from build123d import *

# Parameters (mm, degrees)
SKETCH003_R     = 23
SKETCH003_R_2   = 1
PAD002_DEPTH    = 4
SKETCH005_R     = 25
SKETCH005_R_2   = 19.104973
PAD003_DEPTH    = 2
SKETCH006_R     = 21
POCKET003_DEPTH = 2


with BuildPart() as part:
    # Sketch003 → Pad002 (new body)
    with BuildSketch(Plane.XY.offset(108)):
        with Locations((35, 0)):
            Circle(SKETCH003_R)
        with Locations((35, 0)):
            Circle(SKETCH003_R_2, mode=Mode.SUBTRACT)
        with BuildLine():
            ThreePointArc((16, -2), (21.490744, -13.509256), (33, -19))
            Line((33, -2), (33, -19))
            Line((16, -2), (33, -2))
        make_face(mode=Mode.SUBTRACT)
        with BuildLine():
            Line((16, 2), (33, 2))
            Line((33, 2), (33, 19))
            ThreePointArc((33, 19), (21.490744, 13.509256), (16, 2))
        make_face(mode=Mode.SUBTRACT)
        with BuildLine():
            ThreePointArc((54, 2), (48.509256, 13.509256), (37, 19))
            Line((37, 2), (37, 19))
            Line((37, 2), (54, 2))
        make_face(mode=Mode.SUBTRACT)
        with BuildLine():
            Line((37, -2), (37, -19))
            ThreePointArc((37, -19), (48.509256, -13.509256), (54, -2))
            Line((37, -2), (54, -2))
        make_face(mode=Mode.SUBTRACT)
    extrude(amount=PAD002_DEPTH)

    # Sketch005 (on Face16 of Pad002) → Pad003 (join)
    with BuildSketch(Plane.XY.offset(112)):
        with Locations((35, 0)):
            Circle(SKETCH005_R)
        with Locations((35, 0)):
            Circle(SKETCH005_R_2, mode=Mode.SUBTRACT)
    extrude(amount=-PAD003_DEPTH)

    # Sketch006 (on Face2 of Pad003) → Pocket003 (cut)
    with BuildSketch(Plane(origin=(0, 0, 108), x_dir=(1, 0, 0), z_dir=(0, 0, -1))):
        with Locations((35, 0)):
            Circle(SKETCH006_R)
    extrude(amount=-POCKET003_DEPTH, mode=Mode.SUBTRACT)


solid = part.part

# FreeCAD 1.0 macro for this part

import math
import FreeCAD as App
import Part
import Sketcher

doc = App.newDocument("Part")
body = doc.addObject("PartDesign::Body", "Body")

# Sketch on XY plane
sketch1 = doc.addObject("Sketcher::SketchObject", "Sketch")
body.addObject(sketch1)
sketch1.AttachmentSupport = (doc.XY_Plane, [""])
sketch1.MapMode = "FlatFace"
sketch1.AttachmentOffset = App.Placement(App.Vector(0, 0, 108), App.Rotation())
sketch1.addGeometry([
    Part.Circle(App.Vector(35, 0, 0), App.Vector(0, 0, 1), 23),  # 0
    Part.ArcOfCircle(Part.Circle(App.Vector(35, 0, 0), App.Vector(0, 0, 1), 19.104974), math.radians(-173.990993), math.radians(-96.009007)),  # 1
    Part.LineSegment(App.Vector(16, -2, 0), App.Vector(33, -2, 0)),  # 2
    Part.LineSegment(App.Vector(33, -2, 0), App.Vector(33, -19, 0)),  # 3
    Part.LineSegment(App.Vector(37, -19, 0), App.Vector(37, -2, 0)),  # 4
    Part.LineSegment(App.Vector(37, -2, 0), App.Vector(54, -2, 0)),  # 5
    Part.ArcOfCircle(Part.Circle(App.Vector(35, 0, 0), App.Vector(0, 0, 1), 19.104974), math.radians(-83.990993), math.radians(-6.009007)),  # 6
    Part.LineSegment(App.Vector(33, 2, 0), App.Vector(16, 2, 0)),  # 7
    Part.ArcOfCircle(Part.Circle(App.Vector(35, 0, 0), App.Vector(0, 0, 1), 19.104974), math.radians(96.009007), math.radians(173.990993)),  # 8
    Part.LineSegment(App.Vector(33, 19, 0), App.Vector(33, 2, 0)),  # 9
    Part.Circle(App.Vector(35, 0, 0), App.Vector(0, 0, 1), 1),  # 10
    Part.ArcOfCircle(Part.Circle(App.Vector(35, 0, 0), App.Vector(0, 0, 1), 19.104974), math.radians(6.009007), math.radians(83.990993)),  # 11
    Part.LineSegment(App.Vector(54, 2, 0), App.Vector(37, 2, 0)),  # 12
    Part.LineSegment(App.Vector(37, 2, 0), App.Vector(37, 19, 0)),  # 13
], False)
sketch1.addConstraint([
    Sketcher.Constraint("Coincident", 1, 1, 2, 1),
    Sketcher.Constraint("Coincident", 2, 2, 3, 1),
    Sketcher.Constraint("Coincident", 3, 2, 1, 2),
    Sketcher.Constraint("Coincident", 4, 2, 5, 1),
    Sketcher.Constraint("Coincident", 5, 2, 6, 2),
    Sketcher.Constraint("Coincident", 6, 1, 4, 1),
    Sketcher.Constraint("Coincident", 7, 2, 8, 2),
    Sketcher.Constraint("Coincident", 8, 1, 9, 1),
    Sketcher.Constraint("Coincident", 9, 2, 7, 1),
    Sketcher.Constraint("Coincident", 11, 1, 12, 1),
    Sketcher.Constraint("Coincident", 12, 2, 13, 1),
    Sketcher.Constraint("Coincident", 13, 2, 11, 2),
    Sketcher.Constraint("Horizontal", 2),
    Sketcher.Constraint("Vertical", 3),
    Sketcher.Constraint("Vertical", 4),
    Sketcher.Constraint("Horizontal", 5),
    Sketcher.Constraint("Horizontal", 7),
    Sketcher.Constraint("Vertical", 9),
    Sketcher.Constraint("Horizontal", 12),
    Sketcher.Constraint("Vertical", 13),
    Sketcher.Constraint("Coincident", 1, 3, 0, 3),
    Sketcher.Constraint("Coincident", 6, 3, 0, 3),
    Sketcher.Constraint("Coincident", 8, 3, 0, 3),
    Sketcher.Constraint("Coincident", 10, 3, 0, 3),
    Sketcher.Constraint("Coincident", 11, 3, 0, 3),
    Sketcher.Constraint("Equal", 1, 6),
    Sketcher.Constraint("Equal", 6, 8),
    Sketcher.Constraint("Equal", 8, 11),
    Sketcher.Constraint("Symmetric", 1, 1, 7, 2, -1),
    Sketcher.Constraint("Symmetric", 4, 2, 12, 2, -1),
    Sketcher.Constraint("Horizontal", 2, 2, 4, 2),
    Sketcher.Constraint("Horizontal", 3, 2, 6, 1),
    Sketcher.Constraint("Horizontal", 8, 1, 13, 2),
    Sketcher.Constraint("Equal", 12, 3),
    Sketcher.Constraint("Diameter", 0, 46.0),
    Sketcher.Constraint("Diameter", 10, 2.0),
    Sketcher.Constraint("DistanceX", 2, 1, 2, 2, 17.0),
    Sketcher.Constraint("DistanceX", -1, 1, 0, 3, 35.0),
    Sketcher.Constraint("DistanceX", -1, 1, 1, 1, 16.0),
])
pad1 = doc.addObject("PartDesign::Pad", "Pad")
body.addObject(pad1)
pad1.Profile = sketch1
pad1.Length = 4

# Sketch on XY plane
sketch2 = doc.addObject("Sketcher::SketchObject", "Sketch001")
body.addObject(sketch2)
sketch2.AttachmentSupport = (doc.XY_Plane, [""])
sketch2.MapMode = "FlatFace"
sketch2.AttachmentOffset = App.Placement(App.Vector(0, 0, 112), App.Rotation())
sketch2.addGeometry([
    Part.Circle(App.Vector(35, 0, 0), App.Vector(0, 0, 1), 25),
    Part.Circle(App.Vector(35, 0, 0), App.Vector(0, 0, 1), 19.104973),
], False)
sketch2.addConstraint([
    Sketcher.Constraint("Coincident", 1, 3, 0, 3),
    Sketcher.Constraint("PointOnObject", 0, 3, -1),
    Sketcher.Constraint("Diameter", 0, 50.0),
    Sketcher.Constraint("DistanceX", -1, 1, 0, 3, 35.0),
    Sketcher.Constraint("Diameter", 1, 38.209946),
])
pad2 = doc.addObject("PartDesign::Pad", "Pad001")
body.addObject(pad2)
pad2.Profile = sketch2
pad2.Length = 2
pad2.Reversed = True

# Sketch on XY plane
sketch3 = doc.addObject("Sketcher::SketchObject", "Sketch002")
body.addObject(sketch3)
sketch3.AttachmentSupport = (doc.XY_Plane, [""])
sketch3.MapMode = "FlatFace"
sketch3.AttachmentOffset = App.Placement(App.Vector(0, 0, 108), App.Rotation())
sketch3.addGeometry(Part.Circle(App.Vector(35, 0, 0), App.Vector(0, 0, 1), 21), False)
sketch3.addConstraint([
    Sketcher.Constraint("PointOnObject", 0, 3, -1),
    Sketcher.Constraint("Diameter", 0, 42.0),
    Sketcher.Constraint("DistanceX", -1, 1, 0, 3, 35.0),
])
pocket1 = doc.addObject("PartDesign::Pocket", "Pocket")
body.addObject(pocket1)
pocket1.Profile = sketch3
pocket1.Length = 2
pocket1.Reversed = True

doc.recompute()
